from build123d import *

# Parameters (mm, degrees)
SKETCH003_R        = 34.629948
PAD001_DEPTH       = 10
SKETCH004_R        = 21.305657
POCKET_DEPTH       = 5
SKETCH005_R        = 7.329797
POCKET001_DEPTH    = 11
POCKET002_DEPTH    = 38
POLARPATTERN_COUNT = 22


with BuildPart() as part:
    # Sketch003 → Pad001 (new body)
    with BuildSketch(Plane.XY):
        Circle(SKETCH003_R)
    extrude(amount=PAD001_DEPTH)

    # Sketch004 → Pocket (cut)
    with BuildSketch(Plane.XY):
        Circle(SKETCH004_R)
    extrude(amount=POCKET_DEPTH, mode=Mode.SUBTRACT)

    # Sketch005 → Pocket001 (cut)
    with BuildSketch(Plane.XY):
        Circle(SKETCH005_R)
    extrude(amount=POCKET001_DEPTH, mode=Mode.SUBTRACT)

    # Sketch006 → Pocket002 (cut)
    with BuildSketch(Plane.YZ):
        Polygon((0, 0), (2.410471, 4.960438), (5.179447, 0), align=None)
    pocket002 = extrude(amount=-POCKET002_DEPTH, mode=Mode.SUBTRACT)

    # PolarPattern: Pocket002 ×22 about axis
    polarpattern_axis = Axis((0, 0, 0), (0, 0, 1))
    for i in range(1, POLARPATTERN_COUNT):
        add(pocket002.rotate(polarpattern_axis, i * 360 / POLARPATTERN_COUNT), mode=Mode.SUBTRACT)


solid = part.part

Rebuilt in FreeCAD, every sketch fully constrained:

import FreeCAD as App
import Part
import Sketcher

V = App.Vector
Q = App.Units.Quantity

doc = App.newDocument("Part")
body = doc.addObject("PartDesign::Body", "Body")

# Sketch on XY plane
sketch1 = body.newObject("Sketcher::SketchObject", "Sketch")
sketch1.AttachmentSupport = (doc.getObject("XY_Plane"), [""])
sketch1.MapMode = "FlatFace"
sketch1.addGeometry(Part.Circle(V(0, 0, 0), V(0, 0, 1), 34.629948), False)
sketch1.addConstraint(Sketcher.Constraint("Coincident", 0, 3, -1, 1))
sketch1.addConstraint(Sketcher.Constraint("Diameter", 0, Q("69.259896 mm")))
pad1 = body.newObject("PartDesign::Pad", "Pad")
pad1.Profile = sketch1
pad1.Length = 10

# Sketch on XY plane
sketch2 = body.newObject("Sketcher::SketchObject", "Sketch001")
sketch2.AttachmentSupport = (doc.getObject("XY_Plane"), [""])
sketch2.MapMode = "FlatFace"
sketch2.addGeometry(Part.Circle(V(0, 0, 0), V(0, 0, 1), 21.305657), False)
sketch2.addConstraint(Sketcher.Constraint("Coincident", 0, 3, -1, 1))
sketch2.addConstraint(Sketcher.Constraint("Diameter", 0, Q("42.611314 mm")))
pocket1 = body.newObject("PartDesign::Pocket", "Pocket")
pocket1.Profile = sketch2
pocket1.Length = 5
pocket1.Reversed = True

# Sketch on XY plane
sketch3 = body.newObject("Sketcher::SketchObject", "Sketch002")
sketch3.AttachmentSupport = (doc.getObject("XY_Plane"), [""])
sketch3.MapMode = "FlatFace"
sketch3.addGeometry(Part.Circle(V(0, 0, 0), V(0, 0, 1), 7.329797), False)
sketch3.addConstraint(Sketcher.Constraint("Coincident", 0, 3, -1, 1))
sketch3.addConstraint(Sketcher.Constraint("Diameter", 0, Q("14.659594 mm")))
pocket2 = body.newObject("PartDesign::Pocket", "Pocket001")
pocket2.Profile = sketch3
pocket2.Length = 11
pocket2.Reversed = True

# Sketch on YZ plane
sketch4 = body.newObject("Sketcher::SketchObject", "Sketch003")
sketch4.AttachmentSupport = (doc.getObject("YZ_Plane"), [""])
sketch4.MapMode = "FlatFace"
sketch4.addGeometry(Part.LineSegment(V(2.410471, 4.960438, 0), V(0, 0, 0)), False)
sketch4.addGeometry(Part.LineSegment(V(0, 0, 0), V(5.179447, 0, 0)), False)
sketch4.addGeometry(Part.LineSegment(V(5.179447, 0, 0), V(2.410471, 4.960438, 0)), False)
sketch4.addConstraint(Sketcher.Constraint("Coincident", 0, 2, 1, 1))
sketch4.addConstraint(Sketcher.Constraint("Coincident", 1, 2, 2, 1))
sketch4.addConstraint(Sketcher.Constraint("Coincident", 2, 2, 0, 1))
sketch4.addConstraint(Sketcher.Constraint("Horizontal", 1))
sketch4.addConstraint(Sketcher.Constraint("Coincident", 0, 2, -1, 1))
sketch4.addConstraint(Sketcher.Constraint("Distance", 0, Q("5.515099 mm")))
sketch4.addConstraint(Sketcher.Constraint("Distance", 2, Q("5.680948 mm")))
sketch4.addConstraint(Sketcher.Constraint("DistanceX", 1, 1, 1, 2, Q("5.179447 mm")))
pocket3 = body.newObject("PartDesign::Pocket", "Pocket002")
pocket3.Profile = sketch4
pocket3.Length = 38
doc.recompute()

polarpattern = body.newObject("PartDesign::PolarPattern", "PolarPattern")
polarpattern.Originals = [pocket3]
polarpattern.Axis = (doc.getObject("Z_Axis"), [""])
polarpattern.Angle = 360
polarpattern.Occurrences = 22
body.Tip = polarpattern

doc.recompute()
